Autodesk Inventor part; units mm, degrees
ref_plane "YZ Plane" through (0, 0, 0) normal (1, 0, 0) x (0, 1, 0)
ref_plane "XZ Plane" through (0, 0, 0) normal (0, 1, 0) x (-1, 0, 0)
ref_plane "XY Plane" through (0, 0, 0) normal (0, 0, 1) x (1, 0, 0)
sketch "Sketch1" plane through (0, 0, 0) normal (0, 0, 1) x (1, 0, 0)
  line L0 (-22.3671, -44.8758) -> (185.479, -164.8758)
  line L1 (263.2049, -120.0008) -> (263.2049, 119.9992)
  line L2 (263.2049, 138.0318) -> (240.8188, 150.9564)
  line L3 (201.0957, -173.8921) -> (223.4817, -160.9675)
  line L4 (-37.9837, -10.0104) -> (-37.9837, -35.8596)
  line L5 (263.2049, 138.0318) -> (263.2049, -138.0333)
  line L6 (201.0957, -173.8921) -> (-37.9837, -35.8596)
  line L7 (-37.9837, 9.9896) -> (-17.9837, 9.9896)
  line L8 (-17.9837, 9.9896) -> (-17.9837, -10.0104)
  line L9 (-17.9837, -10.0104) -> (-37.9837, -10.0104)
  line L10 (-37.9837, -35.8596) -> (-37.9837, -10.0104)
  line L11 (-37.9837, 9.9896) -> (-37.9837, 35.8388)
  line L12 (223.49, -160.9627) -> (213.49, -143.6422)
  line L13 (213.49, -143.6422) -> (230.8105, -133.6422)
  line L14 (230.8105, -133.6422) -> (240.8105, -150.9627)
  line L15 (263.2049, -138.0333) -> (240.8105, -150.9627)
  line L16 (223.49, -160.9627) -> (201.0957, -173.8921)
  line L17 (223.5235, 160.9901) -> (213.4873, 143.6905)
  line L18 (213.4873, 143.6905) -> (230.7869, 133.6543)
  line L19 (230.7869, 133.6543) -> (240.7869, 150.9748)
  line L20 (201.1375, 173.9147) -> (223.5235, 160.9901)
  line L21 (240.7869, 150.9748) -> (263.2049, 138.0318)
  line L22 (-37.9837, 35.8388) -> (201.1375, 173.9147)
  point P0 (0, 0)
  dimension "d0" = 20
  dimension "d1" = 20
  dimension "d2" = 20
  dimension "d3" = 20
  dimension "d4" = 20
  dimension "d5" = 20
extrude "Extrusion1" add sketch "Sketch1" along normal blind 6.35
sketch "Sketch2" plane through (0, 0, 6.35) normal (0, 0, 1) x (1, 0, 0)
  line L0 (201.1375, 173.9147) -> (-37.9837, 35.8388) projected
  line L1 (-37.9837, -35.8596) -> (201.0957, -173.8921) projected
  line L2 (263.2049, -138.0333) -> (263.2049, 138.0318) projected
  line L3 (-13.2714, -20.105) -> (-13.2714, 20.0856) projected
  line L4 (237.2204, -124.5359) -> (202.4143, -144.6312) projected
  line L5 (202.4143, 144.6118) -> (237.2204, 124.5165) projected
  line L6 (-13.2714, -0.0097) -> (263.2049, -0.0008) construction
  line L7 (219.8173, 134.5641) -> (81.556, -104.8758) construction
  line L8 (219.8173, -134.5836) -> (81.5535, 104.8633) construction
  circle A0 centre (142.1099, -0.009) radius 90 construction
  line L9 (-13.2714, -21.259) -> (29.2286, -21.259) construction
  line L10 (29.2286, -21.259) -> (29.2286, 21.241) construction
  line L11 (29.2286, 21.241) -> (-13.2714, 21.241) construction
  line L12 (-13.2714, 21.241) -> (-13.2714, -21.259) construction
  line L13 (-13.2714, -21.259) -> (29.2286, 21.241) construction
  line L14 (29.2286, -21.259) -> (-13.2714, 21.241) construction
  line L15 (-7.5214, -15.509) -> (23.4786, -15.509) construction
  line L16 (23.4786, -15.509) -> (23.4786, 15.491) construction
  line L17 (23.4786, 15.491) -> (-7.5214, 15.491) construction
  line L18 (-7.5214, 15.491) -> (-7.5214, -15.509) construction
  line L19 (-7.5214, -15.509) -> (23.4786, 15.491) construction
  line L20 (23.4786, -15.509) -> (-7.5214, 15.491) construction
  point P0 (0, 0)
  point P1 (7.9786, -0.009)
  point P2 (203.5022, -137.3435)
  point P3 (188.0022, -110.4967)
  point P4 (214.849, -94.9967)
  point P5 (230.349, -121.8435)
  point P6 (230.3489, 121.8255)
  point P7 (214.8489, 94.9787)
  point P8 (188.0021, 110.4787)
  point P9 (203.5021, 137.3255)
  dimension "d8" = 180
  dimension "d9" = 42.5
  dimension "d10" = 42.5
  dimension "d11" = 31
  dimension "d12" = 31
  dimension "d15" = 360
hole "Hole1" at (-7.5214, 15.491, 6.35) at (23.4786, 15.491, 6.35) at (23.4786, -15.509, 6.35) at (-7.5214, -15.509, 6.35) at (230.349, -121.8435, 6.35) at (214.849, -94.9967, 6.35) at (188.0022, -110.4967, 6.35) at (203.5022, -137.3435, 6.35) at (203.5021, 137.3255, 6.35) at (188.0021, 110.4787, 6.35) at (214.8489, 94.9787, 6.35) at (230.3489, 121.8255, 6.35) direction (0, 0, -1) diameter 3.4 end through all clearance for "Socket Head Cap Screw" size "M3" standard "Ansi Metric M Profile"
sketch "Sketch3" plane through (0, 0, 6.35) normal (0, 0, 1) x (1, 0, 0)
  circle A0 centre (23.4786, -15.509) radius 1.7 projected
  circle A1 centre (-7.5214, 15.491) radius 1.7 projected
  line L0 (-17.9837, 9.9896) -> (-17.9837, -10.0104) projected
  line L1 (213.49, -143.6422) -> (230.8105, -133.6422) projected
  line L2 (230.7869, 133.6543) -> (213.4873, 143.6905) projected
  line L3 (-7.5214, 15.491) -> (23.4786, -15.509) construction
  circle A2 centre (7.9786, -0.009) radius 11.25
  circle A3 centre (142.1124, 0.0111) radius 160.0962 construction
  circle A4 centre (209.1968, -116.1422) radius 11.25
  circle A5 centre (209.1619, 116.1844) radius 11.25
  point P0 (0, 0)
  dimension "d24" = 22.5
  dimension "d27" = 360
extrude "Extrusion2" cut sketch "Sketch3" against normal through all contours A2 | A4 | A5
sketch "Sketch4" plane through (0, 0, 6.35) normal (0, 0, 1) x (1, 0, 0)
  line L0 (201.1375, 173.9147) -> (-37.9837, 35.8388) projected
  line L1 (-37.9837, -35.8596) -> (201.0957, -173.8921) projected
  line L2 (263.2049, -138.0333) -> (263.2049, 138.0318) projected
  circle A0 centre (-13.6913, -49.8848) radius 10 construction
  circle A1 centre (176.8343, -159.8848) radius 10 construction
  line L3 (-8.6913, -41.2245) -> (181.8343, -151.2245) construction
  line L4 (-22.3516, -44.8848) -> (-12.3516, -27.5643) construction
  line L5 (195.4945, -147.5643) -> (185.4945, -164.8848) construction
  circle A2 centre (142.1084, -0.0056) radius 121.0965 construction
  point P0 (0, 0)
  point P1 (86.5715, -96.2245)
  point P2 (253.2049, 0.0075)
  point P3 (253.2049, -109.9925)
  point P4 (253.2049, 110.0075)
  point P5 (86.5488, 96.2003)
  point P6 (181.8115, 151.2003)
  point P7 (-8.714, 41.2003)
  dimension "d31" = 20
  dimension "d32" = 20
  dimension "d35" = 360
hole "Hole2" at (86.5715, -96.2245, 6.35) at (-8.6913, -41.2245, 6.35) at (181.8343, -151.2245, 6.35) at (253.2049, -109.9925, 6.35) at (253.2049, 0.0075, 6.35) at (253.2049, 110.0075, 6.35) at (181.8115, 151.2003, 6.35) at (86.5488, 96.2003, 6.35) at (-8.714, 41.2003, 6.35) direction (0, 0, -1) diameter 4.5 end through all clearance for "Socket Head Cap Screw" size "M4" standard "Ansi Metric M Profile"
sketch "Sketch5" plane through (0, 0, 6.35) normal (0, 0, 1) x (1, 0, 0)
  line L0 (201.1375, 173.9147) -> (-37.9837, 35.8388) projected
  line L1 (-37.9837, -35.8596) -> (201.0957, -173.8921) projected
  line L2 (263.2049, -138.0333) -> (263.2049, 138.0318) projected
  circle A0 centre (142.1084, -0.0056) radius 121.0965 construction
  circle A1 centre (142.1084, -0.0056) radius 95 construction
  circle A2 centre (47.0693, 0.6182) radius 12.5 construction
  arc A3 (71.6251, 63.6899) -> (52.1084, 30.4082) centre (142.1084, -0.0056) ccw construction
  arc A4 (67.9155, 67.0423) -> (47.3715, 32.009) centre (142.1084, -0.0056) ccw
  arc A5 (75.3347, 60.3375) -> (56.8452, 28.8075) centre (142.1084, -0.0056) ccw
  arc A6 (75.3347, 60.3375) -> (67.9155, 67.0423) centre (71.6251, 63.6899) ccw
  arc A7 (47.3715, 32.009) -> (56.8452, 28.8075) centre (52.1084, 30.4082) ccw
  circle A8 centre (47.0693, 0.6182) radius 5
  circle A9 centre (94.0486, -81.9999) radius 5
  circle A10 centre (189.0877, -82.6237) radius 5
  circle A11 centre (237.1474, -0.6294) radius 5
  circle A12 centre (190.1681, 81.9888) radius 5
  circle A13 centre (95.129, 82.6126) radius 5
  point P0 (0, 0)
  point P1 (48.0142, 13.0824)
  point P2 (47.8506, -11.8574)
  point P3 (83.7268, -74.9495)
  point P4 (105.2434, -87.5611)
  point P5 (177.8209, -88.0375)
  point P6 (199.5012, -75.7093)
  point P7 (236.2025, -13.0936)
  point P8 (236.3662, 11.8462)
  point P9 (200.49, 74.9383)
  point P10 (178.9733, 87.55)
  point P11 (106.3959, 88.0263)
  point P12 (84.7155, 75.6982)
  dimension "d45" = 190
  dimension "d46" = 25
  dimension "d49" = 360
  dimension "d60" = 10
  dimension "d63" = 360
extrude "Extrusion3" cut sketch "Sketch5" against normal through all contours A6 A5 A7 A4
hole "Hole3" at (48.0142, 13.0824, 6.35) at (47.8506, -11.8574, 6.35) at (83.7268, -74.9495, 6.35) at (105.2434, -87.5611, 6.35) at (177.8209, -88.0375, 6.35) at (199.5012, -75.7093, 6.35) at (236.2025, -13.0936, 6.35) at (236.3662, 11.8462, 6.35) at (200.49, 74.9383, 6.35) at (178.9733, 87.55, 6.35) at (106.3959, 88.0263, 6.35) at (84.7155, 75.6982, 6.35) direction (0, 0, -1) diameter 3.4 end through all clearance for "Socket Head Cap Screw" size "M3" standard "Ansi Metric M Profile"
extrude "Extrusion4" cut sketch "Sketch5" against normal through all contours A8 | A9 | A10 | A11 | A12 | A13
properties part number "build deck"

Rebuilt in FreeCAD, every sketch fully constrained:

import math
import FreeCAD as App
import Part
import Sketcher

V = App.Vector

doc = App.newDocument("Part")
body = doc.addObject("PartDesign::Body", "Body")

sketch1 = body.newObject("Sketcher::SketchObject", "Sketch")
sketch1.AttachmentSupport = (doc.getObject("XY_Plane"), [""])
sketch1.MapMode = "FlatFace"
sketch1.addGeometry([
    Part.LineSegment(V(-37.9837, -35.8596, 0), V(-22.367119, -44.875833, 0)),
    Part.LineSegment(V(-22.3671, -44.8758, 0), V(185.479, -164.8758, 0)),
    Part.LineSegment(V(185.479001, -164.875798, 0), V(201.0957, -173.8921, 0)),
    Part.LineSegment(V(201.0957, -173.8921, 0), V(223.4817, -160.9675, 0)),
    Part.LineSegment(V(223.481697, -160.967494, 0), V(223.49, -160.9627, 0)),
    Part.LineSegment(V(223.49, -160.9627, 0), V(213.49, -143.6422, 0)),
    Part.LineSegment(V(213.49, -143.6422, 0), V(230.8105, -133.6422, 0)),
    Part.LineSegment(V(230.8105, -133.6422, 0), V(240.8105, -150.9627, 0)),
    Part.LineSegment(V(240.8105, -150.9627, 0), V(263.2049, -138.0333, 0)),
    Part.LineSegment(V(263.2049, -138.0333, 0), V(263.2049, 138.0318, 0)),
    Part.LineSegment(V(263.2049, 138.0318, 0), V(240.8188, 150.9564, 0)),
    Part.LineSegment(V(240.818792, 150.956387, 0), V(240.7869, 150.9748, 0)),
    Part.LineSegment(V(240.7869, 150.9748, 0), V(230.7869, 133.6543, 0)),
    Part.LineSegment(V(230.7869, 133.6543, 0), V(213.4873, 143.6905, 0)),
    Part.LineSegment(V(213.4873, 143.6905, 0), V(223.5235, 160.9901, 0)),
    Part.LineSegment(V(223.5235, 160.9901, 0), V(201.1375, 173.9147, 0)),
    Part.LineSegment(V(201.1375, 173.9147, 0), V(-37.9837, 35.8388, 0)),
    Part.LineSegment(V(-37.9837, 35.8388, 0), V(-37.9837, 9.9896, 0)),
    Part.LineSegment(V(-37.9837, 9.9896, 0), V(-17.9837, 9.9896, 0)),
    Part.LineSegment(V(-17.9837, 9.9896, 0), V(-17.9837, -10.0104, 0)),
    Part.LineSegment(V(-17.9837, -10.0104, 0), V(-37.9837, -10.0104, 0)),
    Part.LineSegment(V(-37.9837, -10.0104, 0), V(-37.9837, -35.8596, 0)),
], False)
sketch1.addConstraint([
    Sketcher.Constraint("Coincident", 0, 2, 1, 1),
    Sketcher.Constraint("Coincident", 1, 2, 2, 1),
    Sketcher.Constraint("Coincident", 2, 2, 3, 1),
    Sketcher.Constraint("Coincident", 3, 2, 4, 1),
    Sketcher.Constraint("Coincident", 4, 2, 5, 1),
    Sketcher.Constraint("Coincident", 5, 2, 6, 1),
    Sketcher.Constraint("Coincident", 6, 2, 7, 1),
    Sketcher.Constraint("Coincident", 7, 2, 8, 1),
    Sketcher.Constraint("Coincident", 8, 2, 9, 1),
    Sketcher.Constraint("Coincident", 9, 2, 10, 1),
    Sketcher.Constraint("Coincident", 10, 2, 11, 1),
    Sketcher.Constraint("Coincident", 11, 2, 12, 1),
    Sketcher.Constraint("Coincident", 12, 2, 13, 1),
    Sketcher.Constraint("Coincident", 13, 2, 14, 1),
    Sketcher.Constraint("Coincident", 14, 2, 15, 1),
    Sketcher.Constraint("Coincident", 15, 2, 16, 1),
    Sketcher.Constraint("Coincident", 16, 2, 17, 1),
    Sketcher.Constraint("Coincident", 17, 2, 18, 1),
    Sketcher.Constraint("Coincident", 18, 2, 19, 1),
    Sketcher.Constraint("Coincident", 19, 2, 20, 1),
    Sketcher.Constraint("Coincident", 20, 2, 21, 1),
    Sketcher.Constraint("Coincident", 21, 2, 0, 1),
    Sketcher.Constraint("Vertical", 9),
    Sketcher.Constraint("Vertical", 17),
    Sketcher.Constraint("Horizontal", 18),
    Sketcher.Constraint("Vertical", 19),
    Sketcher.Constraint("Horizontal", 20),
    Sketcher.Constraint("Vertical", 21),
    Sketcher.Constraint("DistanceX", 18, 1, 18, 2, 20.0),
    Sketcher.Constraint("DistanceX", 20, 2, 20, 1, 20.0),
    Sketcher.Constraint("DistanceY", 19, 2, 19, 1, 20.0),
    Sketcher.Constraint("Distance", 5, 20.0),
    Sketcher.Constraint("Distance", 6, 20.0),
    Sketcher.Constraint("Distance", 7, 20.0),
    Sketcher.Constraint("Distance", 12, 20.0),
    Sketcher.Constraint("Distance", 13, 20.0),
    Sketcher.Constraint("Distance", 14, 20.0),
    Sketcher.Constraint("Distance", 1, 240.0),
    Sketcher.Constraint("DistanceY", 1, 2, 0, 2, 120.0),
    Sketcher.Constraint("DistanceX", 5, 2, 4, 2, 10.0),
    Sketcher.Constraint("DistanceY", 5, 2, 6, 2, 10.0),
    Sketcher.Constraint("DistanceY", 4, 2, 7, 2, 10.0),
    Sketcher.Constraint("DistanceX", 12, 2, 11, 2, 10.0),
    Sketcher.Constraint("DistanceY", 9, 1, 9, 2, 276.065),
    Sketcher.Constraint("DistanceX", -1, 1, 4, 2, 223.49),
    Sketcher.Constraint("DistanceY", -1, 1, 14, 2, 160.99),
    Sketcher.Constraint("DistanceY", 2, 2, 5, 2, 30.25),
    Sketcher.Constraint("DistanceY", 11, 2, 15, 2, 22.94),
    Sketcher.Constraint("Distance", 16, 276.123),
    Sketcher.Constraint("DistanceY", 17, 2, 17, 1, 25.8492),
    Sketcher.Constraint("DistanceY", 21, 2, 21, 1, 25.8492),
    Sketcher.Constraint("DistanceX", 0, 2, -1, 1, 22.367),
    Sketcher.Constraint("DistanceY", 2, 2, -1, 1, 173.892),
    Sketcher.Constraint("DistanceX", -1, 1, 8, 2, 263.205),
    Sketcher.Constraint("DistanceX", -1, 1, 11, 2, 240.787),
    Sketcher.Constraint("DistanceX", 2, 2, 3, 2, 22.386),
    Sketcher.Constraint("DistanceY", 1, 2, 4, 2, 3.913),
    Sketcher.Constraint("DistanceY", 8, 2, 6, 2, 4.391),
    Sketcher.Constraint("DistanceX", 10, 2, 9, 2, 22.386),
    Sketcher.Constraint("DistanceY", 7, 2, 10, 2, 301.919),
    Sketcher.Constraint("DistanceY", 9, 2, 11, 2, 12.943),
    Sketcher.Constraint("DistanceY", 13, 2, 10, 2, 7.266),
    Sketcher.Constraint("DistanceX", 15, 2, 14, 2, 22.386),
    Sketcher.Constraint("DistanceX", 16, 2, 13, 2, 251.471),
    Sketcher.Constraint("Distance", 2, 18.0326),
    Sketcher.Constraint("Distance", 3, 25.8491),
])
pad1 = body.newObject("PartDesign::Pad", "Pad")
pad1.Profile = sketch1
pad1.Length = 6.35

sketch2 = body.newObject("Sketcher::SketchObject", "Sketch001")
sketch2.AttachmentSupport = (doc.getObject("XY_Plane"), [""])
sketch2.MapMode = "FlatFace"
sketch2.AttachmentOffset = App.Placement(V(0, 0, 6.35), App.Rotation())
sketch2.addGeometry([
    Part.Circle(V(-7.5, 15.5, 0), V(0, 0, 1), 1.7),
    Part.Circle(V(23.5, 15.5, 0), V(0, 0, 1), 1.7),
    Part.Circle(V(23.5, -15.5, 0), V(0, 0, 1), 1.7),
    Part.Circle(V(-7.5, -15.5, 0), V(0, 0, 1), 1.7),
    Part.Circle(V(230.3, -121.8, 0), V(0, 0, 1), 1.7),
    Part.Circle(V(214.8, -95, 0), V(0, 0, 1), 1.7),
    Part.Circle(V(188, -110.5, 0), V(0, 0, 1), 1.7),
    Part.Circle(V(203.5, -137.3, 0), V(0, 0, 1), 1.7),
    Part.Circle(V(203.5, 137.3, 0), V(0, 0, 1), 1.7),
    Part.Circle(V(188, 110.5, 0), V(0, 0, 1), 1.7),
    Part.Circle(V(214.8, 95, 0), V(0, 0, 1), 1.7),
    Part.Circle(V(230.3, 121.8, 0), V(0, 0, 1), 1.7),
], False)
sketch2.addConstraint([
    Sketcher.Constraint("Equal", 0, 1),
    Sketcher.Constraint("Equal", 1, 2),
    Sketcher.Constraint("Equal", 2, 3),
    Sketcher.Constraint("Equal", 3, 4),
    Sketcher.Constraint("Equal", 4, 5),
    Sketcher.Constraint("Equal", 5, 6),
    Sketcher.Constraint("Equal", 6, 7),
    Sketcher.Constraint("Equal", 7, 8),
    Sketcher.Constraint("Equal", 8, 9),
    Sketcher.Constraint("Equal", 9, 10),
    Sketcher.Constraint("Equal", 10, 11),
    Sketcher.Constraint("Horizontal", 0, 3, 1, 3),
    Sketcher.Constraint("Horizontal", 2, 3, 3, 3),
    Sketcher.Constraint("Vertical", 1, 3, 2, 3),
    Sketcher.Constraint("Vertical", 0, 3, 3, 3),
    Sketcher.Constraint("Vertical", 7, 3, 8, 3),
    Sketcher.Constraint("Vertical", 6, 3, 9, 3),
    Sketcher.Constraint("Vertical", 5, 3, 10, 3),
    Sketcher.Constraint("Vertical", 4, 3, 11, 3),
    Sketcher.Constraint("Diameter", 0, 3.4),
    Sketcher.Constraint("DistanceX", 0, 3, 1, 3, 31.0),
    Sketcher.Constraint("DistanceY", 2, 3, 1, 3, 31.0),
    Sketcher.Constraint("DistanceX", 5, 3, 4, 3, 15.5),
    Sketcher.Constraint("DistanceY", 6, 3, 5, 3, 15.5),
    Sketcher.Constraint("DistanceY", 7, 3, 4, 3, 15.5),
    Sketcher.Constraint("DistanceX", 6, 3, 7, 3, 15.5),
    Sketcher.Constraint("DistanceY", 10, 3, 9, 3, 15.5),
    Sketcher.Constraint("DistanceY", 11, 3, 8, 3, 15.5),
    Sketcher.Constraint("DistanceY", -1, 1, 0, 3, 15.491),
    Sketcher.Constraint("DistanceX", -1, 1, 4, 3, 230.349),
    Sketcher.Constraint("DistanceX", -1, 1, 8, 3, 203.502),
    Sketcher.Constraint("DistanceX", 0, 3, -1, 1, 7.5214),
    Sketcher.Constraint("DistanceY", 4, 3, -1, 1, 121.8435),
    Sketcher.Constraint("DistanceY", 5, 3, -1, 1, 94.9967),
    Sketcher.Constraint("DistanceY", -1, 1, 8, 3, 137.3255),
    Sketcher.Constraint("DistanceY", -1, 1, 9, 3, 110.4787),
])
doc.recompute()
hole = body.newObject("PartDesign::Hole", "Hole")
hole.Profile = sketch2
hole.ThreadType = "None"
hole.Diameter = 3.4
hole.DepthType = "ThroughAll"

sketch3 = body.newObject("Sketcher::SketchObject", "Sketch002")
sketch3.AttachmentSupport = (doc.getObject("XY_Plane"), [""])
sketch3.MapMode = "FlatFace"
sketch3.AttachmentOffset = App.Placement(V(0, 0, 6.35), App.Rotation())
sketch3.addGeometry([
    Part.Circle(V(8, 0, 0), V(0, 0, 1), 11),
    Part.Circle(V(209, -116, 0), V(0, 0, 1), 11),
    Part.Circle(V(209, 116, 0), V(0, 0, 1), 11),
], False)
sketch3.addConstraint([
    Sketcher.Constraint("Equal", 0, 1),
    Sketcher.Constraint("Equal", 1, 2),
    Sketcher.Constraint("Diameter", 0, 22.5),
    Sketcher.Constraint("DistanceY", 0, 3, -1, 1, 0.009),
    Sketcher.Constraint("DistanceX", -1, 1, 2, 3, 209.162),
    Sketcher.Constraint("DistanceX", 2, 3, 1, 3, 0.035),
    Sketcher.Constraint("DistanceX", -1, 1, 0, 3, 7.9786),
    Sketcher.Constraint("DistanceY", 1, 3, -1, 1, 116.1422),
    Sketcher.Constraint("DistanceY", -1, 1, 2, 3, 116.1844),
])
pocket1 = body.newObject("PartDesign::Pocket", "Pocket")
pocket1.Profile = sketch3
pocket1.Type = "ThroughAll"

sketch4 = body.newObject("Sketcher::SketchObject", "Sketch003")
sketch4.AttachmentSupport = (doc.getObject("XY_Plane"), [""])
sketch4.MapMode = "FlatFace"
sketch4.AttachmentOffset = App.Placement(V(0, 0, 6.35), App.Rotation())
sketch4.addGeometry([
    Part.Circle(V(86.6, -96.2, 0), V(0, 0, 1), 2.2),
    Part.Circle(V(-8.7, -41.2, 0), V(0, 0, 1), 2.2),
    Part.Circle(V(181.8, -151.2, 0), V(0, 0, 1), 2.2),
    Part.Circle(V(253.2, -110, 0), V(0, 0, 1), 2.2),
    Part.Circle(V(253.2, 0, 0), V(0, 0, 1), 2.2),
    Part.Circle(V(253.2, 110, 0), V(0, 0, 1), 2.2),
    Part.Circle(V(181.8, 151.2, 0), V(0, 0, 1), 2.2),
    Part.Circle(V(86.5, 96.2, 0), V(0, 0, 1), 2.2),
    Part.Circle(V(-8.7, 41.2, 0), V(0, 0, 1), 2.2),
], False)
sketch4.addConstraint([
    Sketcher.Constraint("Equal", 0, 1),
    Sketcher.Constraint("Equal", 1, 2),
    Sketcher.Constraint("Equal", 2, 3),
    Sketcher.Constraint("Equal", 3, 4),
    Sketcher.Constraint("Equal", 4, 5),
    Sketcher.Constraint("Equal", 5, 6),
    Sketcher.Constraint("Equal", 6, 7),
    Sketcher.Constraint("Equal", 7, 8),
    Sketcher.Constraint("Vertical", 3, 3, 4, 3),
    Sketcher.Constraint("Vertical", 4, 3, 5, 3),
    Sketcher.Constraint("Diameter", 0, 4.5),
    Sketcher.Constraint("DistanceY", 0, 3, 1, 3, 55.0),
    Sketcher.Constraint("DistanceY", 2, 3, 0, 3, 55.0),
    Sketcher.Constraint("DistanceY", 3, 3, 4, 3, 110.0),
    Sketcher.Constraint("DistanceY", 4, 3, 5, 3, 110.0),
    Sketcher.Constraint("DistanceY", 7, 3, 6, 3, 55.0),
    Sketcher.Constraint("DistanceY", 8, 3, 7, 3, 55.0),
    Sketcher.Constraint("DistanceX", 0, 3, 6, 3, 95.24),
    Sketcher.Constraint("DistanceX", 1, 3, 7, 3, 95.24),
    Sketcher.Constraint("DistanceX", -1, 1, 3, 3, 253.205),
    Sketcher.Constraint("DistanceX", 8, 3, -1, 1, 8.714),
    Sketcher.Constraint("DistanceY", 2, 3, 3, 3, 41.232),
    Sketcher.Constraint("DistanceX", 7, 3, 5, 3, 166.656),
    Sketcher.Constraint("DistanceX", -1, 1, 0, 3, 86.5715),
    Sketcher.Constraint("DistanceY", 0, 3, -1, 1, 96.2245),
    Sketcher.Constraint("DistanceX", -1, 1, 2, 3, 181.8343),
    Sketcher.Constraint("DistanceY", -1, 1, 6, 3, 151.2003),
])
doc.recompute()
hole2 = body.newObject("PartDesign::Hole", "Hole001")
hole2.Profile = sketch4
hole2.ThreadType = "None"
hole2.Diameter = 4.5
hole2.DepthType = "ThroughAll"

sketch5 = body.newObject("Sketcher::SketchObject", "Sketch004")
sketch5.AttachmentSupport = (doc.getObject("XY_Plane"), [""])
sketch5.MapMode = "FlatFace"
sketch5.AttachmentOffset = App.Placement(V(0, 0, 6.35), App.Rotation())
sketch5.addGeometry([
    Part.ArcOfCircle(Part.Circle(V(71.6, 63.7, 0), V(0, 0, 1), 5), math.radians(-42), math.radians(138)),
    Part.ArcOfCircle(Part.Circle(V(142.1, 0, 0), V(0, 0, 1), 100), math.radians(138), math.radians(161)),
    Part.ArcOfCircle(Part.Circle(V(52.1, 30.4, 0), V(0, 0, 1), 5), math.radians(161), math.radians(341)),
    Part.ArcOfCircle(Part.Circle(V(142.1, 0, 0), V(0, 0, 1), 90), math.radians(138), math.radians(161)),
], False)
sketch5.addConstraint([
    Sketcher.Constraint("Tangent", 0, 2, 1, 1),
    Sketcher.Constraint("Tangent", 1, 2, 2, 1),
    Sketcher.Constraint("Tangent", 2, 2, 3, 2),
    Sketcher.Constraint("Tangent", 3, 1, 0, 1),
    Sketcher.Constraint("Equal", 0, 2),
    Sketcher.Constraint("Radius", 0, 5.0),
    Sketcher.Constraint("Radius", 1, 100.0),
    Sketcher.Constraint("Radius", 3, 89.999),
    Sketcher.Constraint("DistanceX", 2, 3, 1, 3, 90.0),
    Sketcher.Constraint("DistanceY", -1, 1, 0, 3, 63.69),
    Sketcher.Constraint("DistanceY", 2, 2, 3, 1, 31.53),
    Sketcher.Constraint("DistanceX", -1, 1, 0, 3, 71.625),
])
pocket2 = body.newObject("PartDesign::Pocket", "Pocket001")
pocket2.Profile = sketch5
pocket2.Type = "ThroughAll"

sketch6 = body.newObject("Sketcher::SketchObject", "Sketch005")
sketch6.AttachmentSupport = (doc.getObject("XY_Plane"), [""])
sketch6.MapMode = "FlatFace"
sketch6.AttachmentOffset = App.Placement(V(0, 0, 6.35), App.Rotation())
sketch6.addGeometry([
    Part.Circle(V(48, 13.1, 0), V(0, 0, 1), 1.7),
    Part.Circle(V(47.9, -11.9, 0), V(0, 0, 1), 1.7),
    Part.Circle(V(83.7, -74.9, 0), V(0, 0, 1), 1.7),
    Part.Circle(V(105.2, -87.6, 0), V(0, 0, 1), 1.7),
    Part.Circle(V(177.8, -88, 0), V(0, 0, 1), 1.7),
    Part.Circle(V(199.5, -75.7, 0), V(0, 0, 1), 1.7),
    Part.Circle(V(236.2, -13.1, 0), V(0, 0, 1), 1.7),
    Part.Circle(V(236.4, 11.8, 0), V(0, 0, 1), 1.7),
    Part.Circle(V(200.5, 74.9, 0), V(0, 0, 1), 1.7),
    Part.Circle(V(179, 87.5, 0), V(0, 0, 1), 1.7),
    Part.Circle(V(106.4, 88, 0), V(0, 0, 1), 1.7),
    Part.Circle(V(84.7, 75.7, 0), V(0, 0, 1), 1.7),
], False)
sketch6.addConstraint([
    Sketcher.Constraint("Equal", 0, 1),
    Sketcher.Constraint("Equal", 1, 2),
    Sketcher.Constraint("Equal", 2, 3),
    Sketcher.Constraint("Equal", 3, 4),
    Sketcher.Constraint("Equal", 4, 5),
    Sketcher.Constraint("Equal", 5, 6),
    Sketcher.Constraint("Equal", 6, 7),
    Sketcher.Constraint("Equal", 7, 8),
    Sketcher.Constraint("Equal", 8, 9),
    Sketcher.Constraint("Equal", 9, 10),
    Sketcher.Constraint("Equal", 10, 11),
    Sketcher.Constraint("Diameter", 0, 3.4),
    Sketcher.Constraint("DistanceX", -1, 1, 8, 3, 200.49),
    Sketcher.Constraint("DistanceY", -1, 1, 9, 3, 87.55),
    Sketcher.Constraint("DistanceY", 4, 3, 1, 3, 76.18),
    Sketcher.Constraint("DistanceY", 4, 3, 0, 3, 101.12),
    Sketcher.Constraint("DistanceY", 7, 3, 10, 3, 76.18),
    Sketcher.Constraint("DistanceY", 8, 3, 11, 3, 0.76),
    Sketcher.Constraint("DistanceY", 3, 3, -1, 1, 87.561),
    Sketcher.Constraint("DistanceX", -1, 1, 4, 3, 177.821),
    Sketcher.Constraint("DistanceX", -1, 1, 10, 3, 106.396),
    Sketcher.Constraint("DistanceY", 2, 3, 1, 3, 63.092),
    Sketcher.Constraint("DistanceX", 2, 3, 4, 3, 94.094),
    Sketcher.Constraint("DistanceY", 5, 3, 1, 3, 63.852),
    Sketcher.Constraint("DistanceX", 0, 3, 5, 3, 151.487),
    Sketcher.Constraint("DistanceY", 4, 3, 6, 3, 74.944),
    Sketcher.Constraint("DistanceX", 3, 3, 6, 3, 130.959),
    Sketcher.Constraint("DistanceX", 1, 3, 6, 3, 188.352),
    Sketcher.Constraint("DistanceX", 5, 3, 7, 3, 36.865),
    Sketcher.Constraint("DistanceY", 7, 3, 8, 3, 63.092),
    Sketcher.Constraint("DistanceY", 6, 3, 8, 3, 88.032),
    Sketcher.Constraint("DistanceX", 9, 3, 7, 3, 57.393),
    Sketcher.Constraint("DistanceX", 1, 3, 11, 3, 36.865),
    Sketcher.Constraint("DistanceX", -1, 1, 0, 3, 48.0142),
    Sketcher.Constraint("DistanceY", -1, 1, 0, 3, 13.0824),
    Sketcher.Constraint("DistanceX", -1, 1, 1, 3, 47.8506),
])
doc.recompute()
hole3 = body.newObject("PartDesign::Hole", "Hole002")
hole3.Profile = sketch6
hole3.ThreadType = "None"
hole3.Diameter = 3.4
hole3.DepthType = "ThroughAll"

sketch7 = body.newObject("Sketcher::SketchObject", "Sketch006")
sketch7.AttachmentSupport = (doc.getObject("XY_Plane"), [""])
sketch7.MapMode = "FlatFace"
sketch7.AttachmentOffset = App.Placement(V(0, 0, 6.35), App.Rotation())
sketch7.addGeometry([
    Part.Circle(V(47, 1, 0), V(0, 0, 1), 5),
    Part.Circle(V(94, -82, 0), V(0, 0, 1), 5),
    Part.Circle(V(189, -83, 0), V(0, 0, 1), 5),
    Part.Circle(V(237, -1, 0), V(0, 0, 1), 5),
    Part.Circle(V(190, 82, 0), V(0, 0, 1), 5),
    Part.Circle(V(95, 83, 0), V(0, 0, 1), 5),
], False)
sketch7.addConstraint([
    Sketcher.Constraint("Equal", 0, 1),
    Sketcher.Constraint("Equal", 1, 2),
    Sketcher.Constraint("Equal", 2, 3),
    Sketcher.Constraint("Equal", 3, 4),
    Sketcher.Constraint("Equal", 4, 5),
    Sketcher.Constraint("Diameter", 0, 10.0),
    Sketcher.Constraint("DistanceY", 1, 3, -1, 1, 82.0),
    Sketcher.Constraint("DistanceX", -1, 1, 4, 3, 190.168),
    Sketcher.Constraint("DistanceX", -1, 1, 5, 3, 95.129),
    Sketcher.Constraint("DistanceY", 1, 3, 0, 3, 82.618),
    Sketcher.Constraint("DistanceX", 1, 3, 2, 3, 95.039),
    Sketcher.Constraint("DistanceY", 2, 3, 0, 3, 83.242),
    Sketcher.Constraint("DistanceX", 0, 3, 3, 3, 190.078),
    Sketcher.Constraint("DistanceY", 3, 3, 5, 3, 83.242),
    Sketcher.Constraint("DistanceX", -1, 1, 0, 3, 47.0693),
    Sketcher.Constraint("DistanceX", -1, 1, 1, 3, 94.0486),
    Sketcher.Constraint("DistanceY", 3, 3, -1, 1, 0.6294),
    Sketcher.Constraint("DistanceY", -1, 1, 4, 3, 81.9888),
])
pocket3 = body.newObject("PartDesign::Pocket", "Pocket002")
pocket3.Profile = sketch7
pocket3.Type = "ThroughAll"

doc.recompute()
